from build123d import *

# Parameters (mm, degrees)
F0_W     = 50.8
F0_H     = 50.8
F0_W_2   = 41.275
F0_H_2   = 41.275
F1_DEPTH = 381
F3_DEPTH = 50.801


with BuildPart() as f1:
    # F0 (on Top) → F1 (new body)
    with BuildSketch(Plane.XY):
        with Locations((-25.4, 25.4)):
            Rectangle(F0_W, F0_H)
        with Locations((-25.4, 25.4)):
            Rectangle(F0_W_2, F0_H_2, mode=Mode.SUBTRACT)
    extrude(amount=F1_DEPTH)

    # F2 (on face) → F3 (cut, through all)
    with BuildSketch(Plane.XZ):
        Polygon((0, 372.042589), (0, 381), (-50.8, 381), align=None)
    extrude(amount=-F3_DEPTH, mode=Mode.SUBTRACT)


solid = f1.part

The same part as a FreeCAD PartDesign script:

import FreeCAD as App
import Part
import Sketcher

V = App.Vector
Q = App.Units.Quantity


def add_polygon(sketch, points):
    """Adds a closed chain of lines whose ends are joined by coincident constraints."""
    first, n = sketch.GeometryCount, len(points)
    for a, b in zip(points, points[1:] + points[:1]):
        sketch.addGeometry(Part.LineSegment(App.Vector(*a, 0), App.Vector(*b, 0)), False)
    for i in range(n):
        sketch.addConstraint(Sketcher.Constraint("Coincident", first + i, 2, first + (i + 1) % n, 1))

doc = App.newDocument("Part")
body = doc.addObject("PartDesign::Body", "Body")

# Sketch on XY plane
sketch1 = body.newObject("Sketcher::SketchObject", "Sketch")
sketch1.AttachmentSupport = (doc.getObject("XY_Plane"), [""])
sketch1.MapMode = "FlatFace"
add_polygon(sketch1, [(-51, 51), (-51, 0), (0, 0), (0, 51)])  # lines 0-3
add_polygon(sketch1, [(-5, 5), (-46, 5), (-46, 46), (-5, 46)])  # lines 4-7
sketch1.addConstraint([
    Sketcher.Constraint("Vertical", 0),
    Sketcher.Constraint("Horizontal", 1),
    Sketcher.Constraint("Vertical", 2),
    Sketcher.Constraint("Horizontal", 3),
    Sketcher.Constraint("Horizontal", 4),
    Sketcher.Constraint("Vertical", 5),
    Sketcher.Constraint("Horizontal", 6),
    Sketcher.Constraint("Vertical", 7),
    Sketcher.Constraint("Coincident", 1, 2, -1, 1),
    Sketcher.Constraint("Equal", 3, 0),
    Sketcher.Constraint("Equal", 6, 5),
    Sketcher.Constraint("DistanceX", 1, 1, 1, 2, Q("2 in")),
    Sketcher.Constraint("DistanceX", 4, 2, 4, 1, Q("1.625 in")),
    Sketcher.Constraint("DistanceX", 4, 2, -1, 1, Q("1.8125 in")),
    Sketcher.Constraint("DistanceY", -1, 1, 4, 2, Q("0.1875 in")),
])
pad1 = body.newObject("PartDesign::Pad", "Pad")
pad1.Profile = sketch1
pad1.Length = Q("15 in")

# Sketch on XZ plane
sketch2 = body.newObject("Sketcher::SketchObject", "Sketch001")
sketch2.AttachmentSupport = (doc.getObject("XZ_Plane"), [""])
sketch2.MapMode = "FlatFace"
add_polygon(sketch2, [(0, 372), (0, 381), (-51, 381)])  # lines 0-2
sketch2.addConstraint([
    Sketcher.Constraint("Vertical", 0),
    Sketcher.Constraint("Horizontal", 1),
    Sketcher.Constraint("PointOnObject", 0, 2, -2),
    Sketcher.Constraint("DistanceX", 1, 2, 1, 1, Q("2 in")),
    Sketcher.Constraint("DistanceY", -1, 1, 0, 2, Q("15 in")),
    Sketcher.Constraint("Angle", 2, Q("-10 deg")),
])
pocket1 = body.newObject("PartDesign::Pocket", "Pocket")
pocket1.Profile = sketch2
pocket1.Type = "ThroughAll"

doc.recompute()
